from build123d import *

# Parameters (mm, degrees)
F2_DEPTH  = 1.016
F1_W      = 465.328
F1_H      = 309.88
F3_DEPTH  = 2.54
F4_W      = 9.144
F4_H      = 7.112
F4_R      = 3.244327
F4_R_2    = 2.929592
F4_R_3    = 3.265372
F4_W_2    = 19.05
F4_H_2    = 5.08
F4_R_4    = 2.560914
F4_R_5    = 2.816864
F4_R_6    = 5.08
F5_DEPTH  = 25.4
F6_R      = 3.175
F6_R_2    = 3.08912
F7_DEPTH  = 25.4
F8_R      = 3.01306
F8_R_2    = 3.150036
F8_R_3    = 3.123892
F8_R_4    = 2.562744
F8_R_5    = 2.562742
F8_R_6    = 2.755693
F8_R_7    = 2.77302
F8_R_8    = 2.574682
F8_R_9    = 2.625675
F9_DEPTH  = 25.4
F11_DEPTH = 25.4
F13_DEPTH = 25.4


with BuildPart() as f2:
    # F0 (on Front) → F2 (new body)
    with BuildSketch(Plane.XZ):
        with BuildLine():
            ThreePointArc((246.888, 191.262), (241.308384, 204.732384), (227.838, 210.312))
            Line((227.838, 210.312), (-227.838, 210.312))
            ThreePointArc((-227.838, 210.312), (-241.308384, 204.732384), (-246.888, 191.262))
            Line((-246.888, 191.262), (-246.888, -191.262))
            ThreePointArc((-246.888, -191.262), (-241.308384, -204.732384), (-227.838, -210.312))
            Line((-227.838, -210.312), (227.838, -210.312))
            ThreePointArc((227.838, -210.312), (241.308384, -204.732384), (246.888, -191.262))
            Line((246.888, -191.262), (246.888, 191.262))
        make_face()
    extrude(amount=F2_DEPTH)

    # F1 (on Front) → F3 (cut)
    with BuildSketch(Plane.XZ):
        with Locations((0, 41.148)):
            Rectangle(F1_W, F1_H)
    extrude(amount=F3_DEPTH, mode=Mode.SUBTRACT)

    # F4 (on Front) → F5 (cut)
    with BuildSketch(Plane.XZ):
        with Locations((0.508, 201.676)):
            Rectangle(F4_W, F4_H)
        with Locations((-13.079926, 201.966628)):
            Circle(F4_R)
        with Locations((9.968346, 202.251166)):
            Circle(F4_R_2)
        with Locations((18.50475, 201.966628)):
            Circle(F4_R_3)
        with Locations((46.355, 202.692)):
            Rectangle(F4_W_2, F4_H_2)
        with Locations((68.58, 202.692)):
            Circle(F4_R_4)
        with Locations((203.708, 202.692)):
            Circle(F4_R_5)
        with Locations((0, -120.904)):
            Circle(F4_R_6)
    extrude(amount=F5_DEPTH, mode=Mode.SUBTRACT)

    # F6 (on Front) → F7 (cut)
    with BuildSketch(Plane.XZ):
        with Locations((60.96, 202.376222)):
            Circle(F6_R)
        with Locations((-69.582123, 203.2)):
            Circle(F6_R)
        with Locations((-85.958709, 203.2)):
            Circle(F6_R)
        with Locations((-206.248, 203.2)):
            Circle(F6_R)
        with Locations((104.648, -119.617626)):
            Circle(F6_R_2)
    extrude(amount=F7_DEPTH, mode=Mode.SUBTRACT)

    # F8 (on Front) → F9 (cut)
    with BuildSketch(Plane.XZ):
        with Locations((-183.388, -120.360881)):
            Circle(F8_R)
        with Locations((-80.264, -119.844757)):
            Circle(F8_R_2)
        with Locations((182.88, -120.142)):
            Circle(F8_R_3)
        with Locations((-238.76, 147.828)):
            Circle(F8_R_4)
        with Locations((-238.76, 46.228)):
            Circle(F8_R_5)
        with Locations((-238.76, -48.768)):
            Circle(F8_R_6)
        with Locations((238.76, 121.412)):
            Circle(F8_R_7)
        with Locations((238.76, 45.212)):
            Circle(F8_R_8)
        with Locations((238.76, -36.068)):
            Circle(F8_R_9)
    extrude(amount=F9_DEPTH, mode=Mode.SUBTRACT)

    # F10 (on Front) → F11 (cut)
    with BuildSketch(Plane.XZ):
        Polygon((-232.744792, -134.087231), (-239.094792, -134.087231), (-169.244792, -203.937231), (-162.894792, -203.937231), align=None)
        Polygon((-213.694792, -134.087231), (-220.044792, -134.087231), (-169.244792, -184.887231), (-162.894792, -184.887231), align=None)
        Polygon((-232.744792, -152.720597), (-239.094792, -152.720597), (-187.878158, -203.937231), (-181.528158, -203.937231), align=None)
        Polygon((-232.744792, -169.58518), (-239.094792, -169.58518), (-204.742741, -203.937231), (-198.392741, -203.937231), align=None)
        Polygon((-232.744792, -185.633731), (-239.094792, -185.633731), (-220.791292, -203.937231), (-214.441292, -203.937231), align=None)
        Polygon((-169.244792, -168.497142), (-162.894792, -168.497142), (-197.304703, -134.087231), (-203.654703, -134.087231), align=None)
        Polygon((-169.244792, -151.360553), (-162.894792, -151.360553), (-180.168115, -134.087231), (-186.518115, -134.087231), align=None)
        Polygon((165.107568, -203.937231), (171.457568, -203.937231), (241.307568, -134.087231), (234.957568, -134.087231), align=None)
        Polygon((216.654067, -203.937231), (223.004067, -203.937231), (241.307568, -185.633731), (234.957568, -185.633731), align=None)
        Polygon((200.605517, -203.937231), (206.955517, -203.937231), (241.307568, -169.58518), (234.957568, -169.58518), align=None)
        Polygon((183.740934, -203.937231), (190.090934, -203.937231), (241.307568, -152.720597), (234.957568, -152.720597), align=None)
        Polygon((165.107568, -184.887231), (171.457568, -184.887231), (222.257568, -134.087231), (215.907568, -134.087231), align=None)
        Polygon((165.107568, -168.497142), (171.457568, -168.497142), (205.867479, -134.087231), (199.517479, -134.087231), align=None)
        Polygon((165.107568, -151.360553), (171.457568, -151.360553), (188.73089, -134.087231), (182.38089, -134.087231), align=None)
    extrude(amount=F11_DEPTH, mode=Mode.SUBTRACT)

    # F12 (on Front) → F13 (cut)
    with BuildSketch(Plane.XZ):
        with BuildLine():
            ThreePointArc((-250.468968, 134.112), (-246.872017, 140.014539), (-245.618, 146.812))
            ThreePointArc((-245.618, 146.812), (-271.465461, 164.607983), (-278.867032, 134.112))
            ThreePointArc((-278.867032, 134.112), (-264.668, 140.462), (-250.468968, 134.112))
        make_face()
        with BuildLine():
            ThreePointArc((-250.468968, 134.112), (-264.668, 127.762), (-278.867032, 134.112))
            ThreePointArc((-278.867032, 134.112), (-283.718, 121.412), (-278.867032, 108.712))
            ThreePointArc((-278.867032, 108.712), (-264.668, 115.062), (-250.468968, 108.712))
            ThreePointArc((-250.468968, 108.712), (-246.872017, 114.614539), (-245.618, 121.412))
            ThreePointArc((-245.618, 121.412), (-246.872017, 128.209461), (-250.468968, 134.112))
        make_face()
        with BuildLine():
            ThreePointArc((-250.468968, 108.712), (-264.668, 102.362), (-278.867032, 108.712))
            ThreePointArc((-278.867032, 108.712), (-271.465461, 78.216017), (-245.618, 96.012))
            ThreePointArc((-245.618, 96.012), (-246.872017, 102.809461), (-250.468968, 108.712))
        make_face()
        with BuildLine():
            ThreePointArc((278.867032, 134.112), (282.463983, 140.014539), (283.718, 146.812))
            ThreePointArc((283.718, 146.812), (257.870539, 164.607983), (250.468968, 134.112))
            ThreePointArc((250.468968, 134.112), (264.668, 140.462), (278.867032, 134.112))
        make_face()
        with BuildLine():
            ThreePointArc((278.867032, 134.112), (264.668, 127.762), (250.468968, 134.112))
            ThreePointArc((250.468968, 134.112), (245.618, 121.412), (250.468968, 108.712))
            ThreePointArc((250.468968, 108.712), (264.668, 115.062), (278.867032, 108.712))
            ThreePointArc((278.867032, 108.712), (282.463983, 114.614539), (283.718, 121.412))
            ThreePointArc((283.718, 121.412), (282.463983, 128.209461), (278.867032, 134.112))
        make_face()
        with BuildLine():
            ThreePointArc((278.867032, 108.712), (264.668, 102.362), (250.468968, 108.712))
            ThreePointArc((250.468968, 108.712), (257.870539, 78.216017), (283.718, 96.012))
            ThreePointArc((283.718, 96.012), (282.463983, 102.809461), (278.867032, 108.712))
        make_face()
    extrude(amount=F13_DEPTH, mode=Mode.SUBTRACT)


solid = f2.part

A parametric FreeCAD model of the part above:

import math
import FreeCAD as App
import Part
import Sketcher
from FreeCAD import Vector
Q = App.Units.Quantity


def add_polygon(sketch, points):
    """Adds a closed chain of lines whose ends are joined by coincident constraints."""
    first, n = sketch.GeometryCount, len(points)
    for a, b in zip(points, points[1:] + points[:1]):
        sketch.addGeometry(Part.LineSegment(App.Vector(*a, 0), App.Vector(*b, 0)), False)
    for i in range(n):
        sketch.addConstraint(Sketcher.Constraint("Coincident", first + i, 2, first + (i + 1) % n, 1))

doc = App.newDocument("Part")
body = doc.addObject("PartDesign::Body", "Body")

# Sketch on XZ plane
sketch1 = body.newObject("Sketcher::SketchObject", "Sketch")
sketch1.AttachmentSupport = (doc.getObject("XZ_Plane"), [""])
sketch1.MapMode = "FlatFace"
sketch1.addGeometry([
    Part.ArcOfCircle(Part.Circle(Vector(228, 191, 0), Vector(0, 0, 1), 19), math.radians(0), math.radians(90)),  # 0
    Part.LineSegment(Vector(228, 210, 0), Vector(-228, 210, 0)),  # 1
    Part.ArcOfCircle(Part.Circle(Vector(-228, 191, 0), Vector(0, 0, 1), 19), math.radians(90), math.radians(180)),  # 2
    Part.LineSegment(Vector(-247, 191, 0), Vector(-247, -191, 0)),  # 3
    Part.ArcOfCircle(Part.Circle(Vector(-228, -191, 0), Vector(0, 0, 1), 19), math.radians(-180), math.radians(-90)),  # 4
    Part.LineSegment(Vector(-228, -210, 0), Vector(228, -210, 0)),  # 5
    Part.ArcOfCircle(Part.Circle(Vector(228, -191, 0), Vector(0, 0, 1), 19), math.radians(-90), math.radians(0)),  # 6
    Part.LineSegment(Vector(247, -191, 0), Vector(247, 191, 0)),  # 7
], False)
sketch1.addConstraint([
    Sketcher.Constraint("Tangent", 0, 2, 1, 1),
    Sketcher.Constraint("Tangent", 1, 2, 2, 1),
    Sketcher.Constraint("Tangent", 2, 2, 3, 1),
    Sketcher.Constraint("Tangent", 3, 2, 4, 1),
    Sketcher.Constraint("Tangent", 4, 2, 5, 1),
    Sketcher.Constraint("Tangent", 5, 2, 6, 1),
    Sketcher.Constraint("Tangent", 6, 2, 7, 1),
    Sketcher.Constraint("Tangent", 7, 2, 0, 1),
    Sketcher.Constraint("Horizontal", 1),
    Sketcher.Constraint("Vertical", 3),
    Sketcher.Constraint("Horizontal", 5),
    Sketcher.Constraint("Vertical", 7),
    Sketcher.Constraint("Equal", 0, 2),
    Sketcher.Constraint("Equal", 2, 4),
    Sketcher.Constraint("Equal", 4, 6),
    Sketcher.Constraint("Symmetric", 0, 3, 4, 3, -1, 1),
    Sketcher.Constraint("Radius", 0, Q("0.75 in")),
    Sketcher.Constraint("DistanceX", 1, 2, 1, 1, Q("17.94 in")),
    Sketcher.Constraint("DistanceY", 3, 2, 3, 1, Q("15.06 in")),
])
pad1 = body.newObject("PartDesign::Pad", "Pad")
pad1.Profile = sketch1
pad1.Length = Q("0.04 in")

# Sketch on XZ plane
sketch2 = body.newObject("Sketcher::SketchObject", "Sketch001")
sketch2.AttachmentSupport = (doc.getObject("XZ_Plane"), [""])
sketch2.MapMode = "FlatFace"
add_polygon(sketch2, [(-233, 196), (-233, -114), (233, -114), (233, 196)])  # lines 0-3
sketch2.addConstraint([
    Sketcher.Constraint("Vertical", 0),
    Sketcher.Constraint("Horizontal", 1),
    Sketcher.Constraint("Vertical", 2),
    Sketcher.Constraint("Horizontal", 3),
    Sketcher.Constraint("DistanceY", 0, 2, 0, 1, Q("12.2 in")),
    Sketcher.Constraint("DistanceX", 1, 1, 1, 2, Q("18.32 in")),
    Sketcher.Constraint("DistanceX", 0, 2, -1, 1, Q("9.16 in")),
    Sketcher.Constraint("DistanceY", 0, 2, -1, 1, Q("4.48 in")),
])
pocket1 = body.newObject("PartDesign::Pocket", "Pocket")
pocket1.Profile = sketch2
pocket1.Length = Q("0.1 in")
pocket1.Reversed = True

# Sketch on XZ plane
sketch3 = body.newObject("Sketcher::SketchObject", "Sketch002")
sketch3.AttachmentSupport = (doc.getObject("XZ_Plane"), [""])
sketch3.MapMode = "FlatFace"
add_polygon(sketch3, [(-4.1, 205.2), (-4.1, 198.1), (5.1, 198.1), (5.1, 205.2)])  # lines 0-3
sketch3.addGeometry(Part.Circle(Vector(-13.1, 202, 0), Vector(0, 0, 1), 3.2), False)  # 4
sketch3.addGeometry(Part.Circle(Vector(10, 202.3, 0), Vector(0, 0, 1), 2.9), False)  # 5
sketch3.addGeometry(Part.Circle(Vector(18.5, 202, 0), Vector(0, 0, 1), 3.3), False)  # 6
add_polygon(sketch3, [(36.8, 205.2), (36.8, 200.2), (55.9, 200.2), (55.9, 205.2)])  # lines 7-10
sketch3.addGeometry(Part.Circle(Vector(68.6, 202.7, 0), Vector(0, 0, 1), 2.6), False)  # 11
sketch3.addGeometry(Part.Circle(Vector(203.7, 202.7, 0), Vector(0, 0, 1), 2.8), False)  # 12
sketch3.addGeometry(Part.Circle(Vector(0, -120.9, 0), Vector(0, 0, 1), 5.1), False)  # 13
sketch3.addConstraint([
    Sketcher.Constraint("Vertical", 0),
    Sketcher.Constraint("Horizontal", 1),
    Sketcher.Constraint("Vertical", 2),
    Sketcher.Constraint("Horizontal", 3),
    Sketcher.Constraint("Vertical", 7),
    Sketcher.Constraint("Horizontal", 8),
    Sketcher.Constraint("Vertical", 9),
    Sketcher.Constraint("Horizontal", 10),
    Sketcher.Constraint("PointOnObject", 13, 3, -2),
    Sketcher.Constraint("Horizontal", 4, 3, 6, 3),
    Sketcher.Constraint("Horizontal", 11, 3, 12, 3),
    Sketcher.Constraint("Horizontal", 3, 2, 9, 2),
    Sketcher.Constraint("Diameter", 13, Q("0.4 in")),
    Sketcher.Constraint("DistanceY", 7, 2, 7, 1, Q("0.2 in")),
    Sketcher.Constraint("DistanceX", 1, 2, 8, 2, Q("2 in")),
    Sketcher.Constraint("DistanceX", 1, 1, 1, 2, Q("0.36 in")),
    Sketcher.Constraint("DistanceX", 8, 1, 8, 2, Q("0.75 in")),
    Sketcher.Constraint("DistanceY", 0, 2, 0, 1, Q("0.28 in")),
    Sketcher.Constraint("DistanceX", -1, 1, 11, 3, Q("2.7 in")),
    Sketcher.Constraint("DistanceY", -1, 1, 0, 2, Q("7.8 in")),
    Sketcher.Constraint("DistanceX", -1, 1, 1, 2, Q("0.2 in")),
    Sketcher.Constraint("DistanceY", 7, 2, 11, 3, Q("0.1 in")),
    Sketcher.Constraint("DistanceX", -1, 1, 12, 3, Q("8.02 in")),
    Sketcher.Constraint("DistanceY", 13, 3, -1, 1, Q("4.76 in")),
    Sketcher.Constraint("Diameter", 4, 6.488654),
    Sketcher.Constraint("Diameter", 5, 5.859184),
    Sketcher.Constraint("Diameter", 6, 6.530744),
    Sketcher.Constraint("Diameter", 11, 5.121828),
    Sketcher.Constraint("Diameter", 12, 5.633728),
    Sketcher.Constraint("DistanceX", -1, 1, 6, 3, 18.50475),
    Sketcher.Constraint("DistanceY", 4, 3, 5, 3, 0.284538),
    Sketcher.Constraint("DistanceY", 13, 3, 4, 3, 322.870628),
    Sketcher.Constraint("DistanceX", 4, 3, -1, 1, 13.079926),
    Sketcher.Constraint("DistanceX", -1, 1, 5, 3, 9.968346),
])
pocket2 = body.newObject("PartDesign::Pocket", "Pocket001")
pocket2.Profile = sketch3
pocket2.Length = Q("1 in")
pocket2.Reversed = True

# Sketch on XZ plane
sketch4 = body.newObject("Sketcher::SketchObject", "Sketch003")
sketch4.AttachmentSupport = (doc.getObject("XZ_Plane"), [""])
sketch4.MapMode = "FlatFace"
sketch4.addGeometry([
    Part.Circle(Vector(61, 202.4, 0), Vector(0, 0, 1), 3.2),  # 0
    Part.Circle(Vector(-69.6, 203.2, 0), Vector(0, 0, 1), 3.2),  # 1
    Part.Circle(Vector(-86, 203.2, 0), Vector(0, 0, 1), 3.2),  # 2
    Part.Circle(Vector(-206.2, 203.2, 0), Vector(0, 0, 1), 3.2),  # 3
    Part.Circle(Vector(104.6, -119.6, 0), Vector(0, 0, 1), 3.1),  # 4
], False)
sketch4.addConstraint([
    Sketcher.Constraint("Equal", 0, 1),
    Sketcher.Constraint("Equal", 1, 2),
    Sketcher.Constraint("Equal", 2, 3),
    Sketcher.Constraint("Horizontal", 1, 3, 2, 3),
    Sketcher.Constraint("Horizontal", 2, 3, 3, 3),
    Sketcher.Constraint("Diameter", 0, Q("0.25 in")),
    Sketcher.Constraint("DistanceY", -1, 1, 1, 3, Q("8 in")),
    Sketcher.Constraint("DistanceX", -1, 1, 0, 3, Q("2.4 in")),
    Sketcher.Constraint("DistanceX", 3, 3, -1, 1, Q("8.12 in")),
    Sketcher.Constraint("DistanceX", -1, 1, 4, 3, Q("4.12 in")),
    Sketcher.Constraint("Diameter", 4, 6.17824),
    Sketcher.Constraint("DistanceX", 2, 3, -1, 1, 85.958709),
    Sketcher.Constraint("DistanceY", 4, 3, 0, 3, 321.993848),
    Sketcher.Constraint("DistanceY", -1, 1, 0, 3, 202.376222),
    Sketcher.Constraint("DistanceX", 1, 3, -1, 1, 69.582123),
])
pocket3 = body.newObject("PartDesign::Pocket", "Pocket002")
pocket3.Profile = sketch4
pocket3.Length = Q("1 in")
pocket3.Reversed = True

# Sketch on XZ plane
sketch5 = body.newObject("Sketcher::SketchObject", "Sketch004")
sketch5.AttachmentSupport = (doc.getObject("XZ_Plane"), [""])
sketch5.MapMode = "FlatFace"
sketch5.addGeometry([
    Part.Circle(Vector(-183.4, -120.4, 0), Vector(0, 0, 1), 3),  # 0
    Part.Circle(Vector(-80.3, -119.8, 0), Vector(0, 0, 1), 3.2),  # 1
    Part.Circle(Vector(182.9, -120.1, 0), Vector(0, 0, 1), 3.1),  # 2
    Part.Circle(Vector(-238.8, 147.8, 0), Vector(0, 0, 1), 2.6),  # 3
    Part.Circle(Vector(-238.8, 46.2, 0), Vector(0, 0, 1), 2.6),  # 4
    Part.Circle(Vector(-238.8, -48.8, 0), Vector(0, 0, 1), 2.8),  # 5
    Part.Circle(Vector(238.8, 121.4, 0), Vector(0, 0, 1), 2.8),  # 6
    Part.Circle(Vector(238.8, 45.2, 0), Vector(0, 0, 1), 2.6),  # 7
    Part.Circle(Vector(238.8, -36.1, 0), Vector(0, 0, 1), 2.6),  # 8
], False)
sketch5.addConstraint([
    Sketcher.Constraint("Equal", 3, 4),
    Sketcher.Constraint("Vertical", 3, 3, 4, 3),
    Sketcher.Constraint("Vertical", 4, 3, 5, 3),
    Sketcher.Constraint("Vertical", 6, 3, 7, 3),
    Sketcher.Constraint("Vertical", 7, 3, 8, 3),
    Sketcher.Constraint("DistanceY", 4, 3, 3, 3, Q("4 in")),
    Sketcher.Constraint("DistanceY", 7, 3, 6, 3, Q("3 in")),
    Sketcher.Constraint("DistanceX", -1, 1, 2, 3, Q("7.2 in")),
    Sketcher.Constraint("DistanceX", 3, 3, -1, 1, Q("9.4 in")),
    Sketcher.Constraint("DistanceX", -1, 1, 6, 3, Q("9.4 in")),
    Sketcher.Constraint("DistanceY", 8, 3, 7, 3, Q("3.2 in")),
    Sketcher.Constraint("DistanceX", 0, 3, -1, 1, Q("7.22 in")),
    Sketcher.Constraint("DistanceX", 1, 3, -1, 1, Q("3.16 in")),
    Sketcher.Constraint("DistanceY", 2, 3, -1, 1, Q("4.73 in")),
    Sketcher.Constraint("DistanceY", -1, 1, 3, 3, Q("5.82 in")),
    Sketcher.Constraint("DistanceY", 5, 3, -1, 1, Q("1.92 in")),
    Sketcher.Constraint("DistanceY", -1, 1, 6, 3, Q("4.78 in")),
    Sketcher.Constraint("Diameter", 0, 6.02612),
    Sketcher.Constraint("Diameter", 6, 5.54604),
    Sketcher.Constraint("Diameter", 8, 5.25135),
    Sketcher.Constraint("Diameter", 1, 6.300072),
    Sketcher.Constraint("Diameter", 2, 6.247784),
    Sketcher.Constraint("Diameter", 3, 5.125488),
    Sketcher.Constraint("Diameter", 5, 5.511386),
    Sketcher.Constraint("Diameter", 7, 5.149364),
    Sketcher.Constraint("DistanceY", 0, 3, -1, 1, 120.360881),
    Sketcher.Constraint("DistanceY", 1, 3, -1, 1, 119.844757),
])
pocket4 = body.newObject("PartDesign::Pocket", "Pocket003")
pocket4.Profile = sketch5
pocket4.Length = Q("1 in")
pocket4.Reversed = True

# Sketch on XZ plane
sketch6 = body.newObject("Sketcher::SketchObject", "Sketch005")
sketch6.AttachmentSupport = (doc.getObject("XZ_Plane"), [""])
sketch6.MapMode = "FlatFace"
add_polygon(sketch6, [(-233, -134), (-239, -134), (-169, -204), (-163, -204)])  # lines 0-3
add_polygon(sketch6, [(-214, -134), (-220, -134), (-169, -185), (-163, -185)])  # lines 4-7
add_polygon(sketch6, [(-233, -153), (-239, -153), (-188, -204), (-182, -204)])  # lines 8-11
add_polygon(sketch6, [(-233, -170), (-239, -170), (-205, -204), (-198, -204)])  # lines 12-15
add_polygon(sketch6, [(-233, -186), (-239, -186), (-221, -204), (-214, -204)])  # lines 16-19
add_polygon(sketch6, [(-169, -168), (-163, -168), (-197, -134), (-204, -134)])  # lines 20-23
add_polygon(sketch6, [(-169, -151), (-163, -151), (-180, -134), (-187, -134)])  # lines 24-27
add_polygon(sketch6, [(165, -204), (171, -204), (241, -134), (235, -134)])  # lines 28-31
add_polygon(sketch6, [(217, -204), (223, -204), (241, -186), (235, -186)])  # lines 32-35
add_polygon(sketch6, [(201, -204), (207, -204), (241, -170), (235, -170)])  # lines 36-39
add_polygon(sketch6, [(184, -204), (190, -204), (241, -153), (235, -153)])  # lines 40-43
add_polygon(sketch6, [(165, -185), (171, -185), (222, -134), (216, -134)])  # lines 44-47
add_polygon(sketch6, [(165, -168), (171, -168), (206, -134), (200, -134)])  # lines 48-51
add_polygon(sketch6, [(165, -151), (171, -151), (189, -134), (182, -134)])  # lines 52-55
sketch6.addConstraint([
    Sketcher.Constraint("Horizontal", 0),
    Sketcher.Constraint("Horizontal", 2),
    Sketcher.Constraint("Horizontal", 4),
    Sketcher.Constraint("Horizontal", 6),
    Sketcher.Constraint("Horizontal", 8),
    Sketcher.Constraint("Horizontal", 10),
    Sketcher.Constraint("Horizontal", 12),
    Sketcher.Constraint("Horizontal", 14),
    Sketcher.Constraint("Horizontal", 16),
    Sketcher.Constraint("Horizontal", 18),
    Sketcher.Constraint("Horizontal", 20),
    Sketcher.Constraint("Horizontal", 22),
    Sketcher.Constraint("Horizontal", 24),
    Sketcher.Constraint("Horizontal", 26),
    Sketcher.Constraint("Horizontal", 28),
    Sketcher.Constraint("Horizontal", 30),
    Sketcher.Constraint("Horizontal", 32),
    Sketcher.Constraint("Horizontal", 34),
    Sketcher.Constraint("Horizontal", 36),
    Sketcher.Constraint("Horizontal", 38),
    Sketcher.Constraint("Horizontal", 40),
    Sketcher.Constraint("Horizontal", 42),
    Sketcher.Constraint("Horizontal", 44),
    Sketcher.Constraint("Horizontal", 46),
    Sketcher.Constraint("Horizontal", 48),
    Sketcher.Constraint("Horizontal", 50),
    Sketcher.Constraint("Horizontal", 52),
    Sketcher.Constraint("Horizontal", 54),
    Sketcher.Constraint("Parallel", 1, 3),
    Sketcher.Constraint("Parallel", 3, 5),
    Sketcher.Constraint("Parallel", 5, 7),
    Sketcher.Constraint("Parallel", 7, 9),
    Sketcher.Constraint("Parallel", 9, 11),
    Sketcher.Constraint("Parallel", 11, 13),
    Sketcher.Constraint("Parallel", 13, 15),
    Sketcher.Constraint("Parallel", 15, 17),
    Sketcher.Constraint("Parallel", 17, 19),
    Sketcher.Constraint("Parallel", 19, 21),
    Sketcher.Constraint("Parallel", 21, 23),
    Sketcher.Constraint("Parallel", 23, 25),
    Sketcher.Constraint("Parallel", 25, 27),
    Sketcher.Constraint("Perpendicular", 27, 29),
    Sketcher.Constraint("Parallel", 29, 31),
    Sketcher.Constraint("Parallel", 31, 33),
    Sketcher.Constraint("Parallel", 33, 35),
    Sketcher.Constraint("Parallel", 35, 37),
    Sketcher.Constraint("Parallel", 37, 39),
    Sketcher.Constraint("Parallel", 39, 41),
    Sketcher.Constraint("Parallel", 41, 43),
    Sketcher.Constraint("Parallel", 43, 45),
    Sketcher.Constraint("Parallel", 45, 47),
    Sketcher.Constraint("Parallel", 47, 49),
    Sketcher.Constraint("Parallel", 49, 51),
    Sketcher.Constraint("Parallel", 51, 53),
    Sketcher.Constraint("Parallel", 53, 55),
    Sketcher.Constraint("Horizontal", 3, 2, 4, 2),
    Sketcher.Constraint("Horizontal", 2, 2, 9, 2),
    Sketcher.Constraint("Horizontal", 10, 2, 13, 2),
    Sketcher.Constraint("Horizontal", 14, 2, 17, 2),
    Sketcher.Constraint("Horizontal", 7, 2, 21, 2),
    Sketcher.Constraint("Horizontal", 22, 2, 25, 2),
    Sketcher.Constraint("Horizontal", 18, 2, 28, 2),
    Sketcher.Constraint("Horizontal", 26, 2, 29, 2),
    Sketcher.Constraint("Horizontal", 31, 2, 32, 2),
    Sketcher.Constraint("Horizontal", 19, 2, 33, 2),
    Sketcher.Constraint("Horizontal", 35, 2, 36, 2),
    Sketcher.Constraint("Horizontal", 15, 2, 37, 2),
    Sketcher.Constraint("Horizontal", 39, 2, 40, 2),
    Sketcher.Constraint("Horizontal", 11, 2, 41, 2),
    Sketcher.Constraint("Horizontal", 6, 2, 44, 2),
    Sketcher.Constraint("Horizontal", 30, 2, 45, 2),
    Sketcher.Constraint("Horizontal", 23, 2, 48, 2),
    Sketcher.Constraint("Horizontal", 46, 2, 49, 2),
    Sketcher.Constraint("Horizontal", 27, 2, 52, 2),
    Sketcher.Constraint("Horizontal", 50, 2, 53, 2),
    Sketcher.Constraint("Vertical", 1, 2, 5, 2),
    Sketcher.Constraint("Vertical", 2, 2, 6, 2),
    Sketcher.Constraint("Vertical", 0, 2, 8, 2),
    Sketcher.Constraint("Vertical", 3, 2, 11, 2),
    Sketcher.Constraint("Vertical", 8, 2, 12, 2),
    Sketcher.Constraint("Vertical", 11, 2, 15, 2),
    Sketcher.Constraint("Vertical", 12, 2, 16, 2),
    Sketcher.Constraint("Vertical", 15, 2, 19, 2),
    Sketcher.Constraint("Vertical", 6, 2, 20, 2),
    Sketcher.Constraint("Vertical", 5, 2, 23, 2),
    Sketcher.Constraint("Vertical", 20, 2, 24, 2),
    Sketcher.Constraint("Vertical", 23, 2, 27, 2),
    Sketcher.Constraint("Vertical", 29, 2, 33, 2),
    Sketcher.Constraint("Vertical", 30, 2, 34, 2),
    Sketcher.Constraint("Vertical", 33, 2, 37, 2),
    Sketcher.Constraint("Vertical", 34, 2, 38, 2),
    Sketcher.Constraint("Vertical", 37, 2, 41, 2),
    Sketcher.Constraint("Vertical", 38, 2, 42, 2),
    Sketcher.Constraint("Vertical", 28, 2, 44, 2),
    Sketcher.Constraint("Vertical", 31, 2, 47, 2),
    Sketcher.Constraint("Vertical", 44, 2, 48, 2),
    Sketcher.Constraint("Vertical", 47, 2, 51, 2),
    Sketcher.Constraint("Vertical", 48, 2, 52, 2),
    Sketcher.Constraint("Vertical", 51, 2, 55, 2),
    Sketcher.Constraint("Equal", 26, 28),
    Sketcher.Constraint("Equal", 3, 29),
    Sketcher.Constraint("DistanceX", 0, 2, 2, 2, Q("3 in")),
    Sketcher.Constraint("DistanceX", 4, 2, 1, 2, Q("2 in")),
    Sketcher.Constraint("DistanceX", 0, 2, 0, 1, Q("0.25 in")),
    Sketcher.Constraint("DistanceY", 13, 2, 16, 2, 18.3035),
    Sketcher.Constraint("Distance", 9, 72.431258),
    Sketcher.Constraint("DistanceY", 0, 2, -1, 1, 134.087231),
    Sketcher.Constraint("DistanceX", 1, 2, -1, 1, 169.244792),
    Sketcher.Constraint("DistanceY", 12, 2, -1, 1, 169.58518),
    Sketcher.Constraint("DistanceY", 20, 2, -1, 1, 168.497142),
    Sketcher.Constraint("DistanceX", -1, 1, 28, 2, 171.457568),
    Sketcher.Constraint("DistanceX", -1, 1, 53, 2, 188.73089),
])
pocket5 = body.newObject("PartDesign::Pocket", "Pocket004")
pocket5.Profile = sketch6
pocket5.Length = Q("1 in")
pocket5.Reversed = True

# Sketch on XZ plane
sketch7 = body.newObject("Sketcher::SketchObject", "Sketch006")
sketch7.AttachmentSupport = (doc.getObject("XZ_Plane"), [""])
sketch7.MapMode = "FlatFace"
sketch7.addGeometry([
    Part.ArcOfCircle(Part.Circle(Vector(-265, 147, 0), Vector(0, 0, 1), 19), math.radians(-42), math.radians(0)),  # 0
    Part.ArcOfCircle(Part.Circle(Vector(-265, 147, 0), Vector(0, 0, 1), 19), math.radians(0), math.radians(222)),  # 1
    Part.ArcOfCircle(Part.Circle(Vector(-265, 121, 0), Vector(0, 0, 1), 19), math.radians(42), math.radians(138)),  # 2
    Part.ArcOfCircle(Part.Circle(Vector(-265, 147, 0), Vector(0, 0, 1), 19), math.radians(-138), math.radians(-42)),  # 3
    Part.ArcOfCircle(Part.Circle(Vector(-265, 121, 0), Vector(0, 0, 1), 19), math.radians(138), math.radians(222)),  # 4
    Part.ArcOfCircle(Part.Circle(Vector(-265, 96, 0), Vector(0, 0, 1), 19), math.radians(42), math.radians(138)),  # 5
    Part.ArcOfCircle(Part.Circle(Vector(-265, 121, 0), Vector(0, 0, 1), 19), math.radians(-42), math.radians(0)),  # 6
    Part.ArcOfCircle(Part.Circle(Vector(-265, 121, 0), Vector(0, 0, 1), 19), math.radians(0), math.radians(42)),  # 7
    Part.ArcOfCircle(Part.Circle(Vector(-265, 121, 0), Vector(0, 0, 1), 19), math.radians(-138), math.radians(-42)),  # 8
    Part.ArcOfCircle(Part.Circle(Vector(-265, 96, 0), Vector(0, 0, 1), 19), math.radians(138), math.radians(360)),  # 9
    Part.ArcOfCircle(Part.Circle(Vector(-265, 96, 0), Vector(0, 0, 1), 19), math.radians(0), math.radians(42)),  # 10
    Part.ArcOfCircle(Part.Circle(Vector(265, 147, 0), Vector(0, 0, 1), 19), math.radians(-42), math.radians(0)),  # 11
    Part.ArcOfCircle(Part.Circle(Vector(265, 147, 0), Vector(0, 0, 1), 19), math.radians(0), math.radians(222)),  # 12
    Part.ArcOfCircle(Part.Circle(Vector(265, 121, 0), Vector(0, 0, 1), 19), math.radians(42), math.radians(138)),  # 13
    Part.ArcOfCircle(Part.Circle(Vector(265, 147, 0), Vector(0, 0, 1), 19), math.radians(-138), math.radians(-42)),  # 14
    Part.ArcOfCircle(Part.Circle(Vector(265, 121, 0), Vector(0, 0, 1), 19), math.radians(138), math.radians(222)),  # 15
    Part.ArcOfCircle(Part.Circle(Vector(265, 96, 0), Vector(0, 0, 1), 19), math.radians(42), math.radians(138)),  # 16
    Part.ArcOfCircle(Part.Circle(Vector(265, 121, 0), Vector(0, 0, 1), 19), math.radians(-42), math.radians(0)),  # 17
    Part.ArcOfCircle(Part.Circle(Vector(265, 121, 0), Vector(0, 0, 1), 19), math.radians(0), math.radians(42)),  # 18
    Part.ArcOfCircle(Part.Circle(Vector(265, 121, 0), Vector(0, 0, 1), 19), math.radians(-138), math.radians(-42)),  # 19
    Part.ArcOfCircle(Part.Circle(Vector(265, 96, 0), Vector(0, 0, 1), 19), math.radians(138), math.radians(360)),  # 20
    Part.ArcOfCircle(Part.Circle(Vector(265, 96, 0), Vector(0, 0, 1), 19), math.radians(0), math.radians(42)),  # 21
], False)
sketch7.addConstraint([
    Sketcher.Constraint("Tangent", 0, 2, 1, 1),
    Sketcher.Constraint("Coincident", 1, 2, 2, 2),
    Sketcher.Constraint("Coincident", 2, 1, 0, 1),
    Sketcher.Constraint("Coincident", 3, 1, 4, 1),
    Sketcher.Constraint("Coincident", 4, 2, 5, 2),
    Sketcher.Constraint("Coincident", 5, 1, 6, 1),
    Sketcher.Constraint("Tangent", 6, 2, 7, 1),
    Sketcher.Constraint("Coincident", 7, 2, 3, 2),
    Sketcher.Constraint("Coincident", 8, 1, 9, 1),
    Sketcher.Constraint("Tangent", 9, 2, 10, 1),
    Sketcher.Constraint("Coincident", 10, 2, 8, 2),
    Sketcher.Constraint("Tangent", 11, 2, 12, 1),
    Sketcher.Constraint("Coincident", 12, 2, 13, 2),
    Sketcher.Constraint("Coincident", 13, 1, 11, 1),
    Sketcher.Constraint("Coincident", 14, 1, 15, 1),
    Sketcher.Constraint("Coincident", 15, 2, 16, 2),
    Sketcher.Constraint("Coincident", 16, 1, 17, 1),
    Sketcher.Constraint("Tangent", 17, 2, 18, 1),
    Sketcher.Constraint("Coincident", 18, 2, 14, 2),
    Sketcher.Constraint("Coincident", 19, 1, 20, 1),
    Sketcher.Constraint("Tangent", 20, 2, 21, 1),
    Sketcher.Constraint("Coincident", 21, 2, 19, 2),
    Sketcher.Constraint("Coincident", 3, 3, 0, 3),
    Sketcher.Constraint("Coincident", 4, 3, 2, 3),
    Sketcher.Constraint("Coincident", 6, 3, 2, 3),
    Sketcher.Constraint("Coincident", 8, 3, 2, 3),
    Sketcher.Constraint("Coincident", 9, 3, 5, 3),
    Sketcher.Constraint("Coincident", 14, 3, 11, 3),
    Sketcher.Constraint("Coincident", 15, 3, 13, 3),
    Sketcher.Constraint("Coincident", 17, 3, 13, 3),
    Sketcher.Constraint("Coincident", 19, 3, 13, 3),
    Sketcher.Constraint("Coincident", 20, 3, 16, 3),
    Sketcher.Constraint("Coincident", 3, 1, 1, 2),
    Sketcher.Constraint("Coincident", 7, 2, 2, 1),
    Sketcher.Constraint("Coincident", 8, 1, 4, 2),
    Sketcher.Constraint("Coincident", 10, 2, 5, 1),
    Sketcher.Constraint("Coincident", 14, 1, 12, 2),
    Sketcher.Constraint("Coincident", 18, 2, 13, 1),
    Sketcher.Constraint("Coincident", 19, 1, 15, 2),
    Sketcher.Constraint("Coincident", 21, 2, 16, 1),
    Sketcher.Constraint("Equal", 1, 2),
    Sketcher.Constraint("Equal", 4, 5),
    Sketcher.Constraint("Equal", 10, 11),
    Sketcher.Constraint("Equal", 12, 13),
    Sketcher.Constraint("Equal", 15, 16),
    Sketcher.Constraint("Symmetric", 1, 3, 11, 3, -2),
    Sketcher.Constraint("Symmetric", 2, 3, 13, 3, -2),
    Sketcher.Constraint("Symmetric", 5, 3, 16, 3, -2),
    Sketcher.Constraint("Horizontal", 14, 3, 0, 2),
    Sketcher.Constraint("Horizontal", 1, 2, 2, 1),
    Sketcher.Constraint("Horizontal", 4, 2, 5, 1),
    Sketcher.Constraint("Horizontal", 19, 3, 6, 2),
    Sketcher.Constraint("Horizontal", 20, 3, 9, 2),
    Sketcher.Constraint("Horizontal", 0, 2, 11, 2),
    Sketcher.Constraint("Horizontal", 6, 2, 17, 2),
    Sketcher.Constraint("Horizontal", 9, 2, 20, 2),
    Sketcher.Constraint("Vertical", 3, 1, 4, 2),
    Sketcher.Constraint("Radius", 1, Q("0.75 in")),
    Sketcher.Constraint("DistanceY", 2, 3, 1, 3, Q("1 in")),
    Sketcher.Constraint("DistanceY", -1, 1, 0, 3, Q("5.7800001 in")),
    Sketcher.Constraint("DistanceX", 1, 3, -1, 1, Q("10.42 in")),
])
pocket6 = body.newObject("PartDesign::Pocket", "Pocket005")
pocket6.Profile = sketch7
pocket6.Length = Q("1 in")
pocket6.Reversed = True

doc.recompute()
